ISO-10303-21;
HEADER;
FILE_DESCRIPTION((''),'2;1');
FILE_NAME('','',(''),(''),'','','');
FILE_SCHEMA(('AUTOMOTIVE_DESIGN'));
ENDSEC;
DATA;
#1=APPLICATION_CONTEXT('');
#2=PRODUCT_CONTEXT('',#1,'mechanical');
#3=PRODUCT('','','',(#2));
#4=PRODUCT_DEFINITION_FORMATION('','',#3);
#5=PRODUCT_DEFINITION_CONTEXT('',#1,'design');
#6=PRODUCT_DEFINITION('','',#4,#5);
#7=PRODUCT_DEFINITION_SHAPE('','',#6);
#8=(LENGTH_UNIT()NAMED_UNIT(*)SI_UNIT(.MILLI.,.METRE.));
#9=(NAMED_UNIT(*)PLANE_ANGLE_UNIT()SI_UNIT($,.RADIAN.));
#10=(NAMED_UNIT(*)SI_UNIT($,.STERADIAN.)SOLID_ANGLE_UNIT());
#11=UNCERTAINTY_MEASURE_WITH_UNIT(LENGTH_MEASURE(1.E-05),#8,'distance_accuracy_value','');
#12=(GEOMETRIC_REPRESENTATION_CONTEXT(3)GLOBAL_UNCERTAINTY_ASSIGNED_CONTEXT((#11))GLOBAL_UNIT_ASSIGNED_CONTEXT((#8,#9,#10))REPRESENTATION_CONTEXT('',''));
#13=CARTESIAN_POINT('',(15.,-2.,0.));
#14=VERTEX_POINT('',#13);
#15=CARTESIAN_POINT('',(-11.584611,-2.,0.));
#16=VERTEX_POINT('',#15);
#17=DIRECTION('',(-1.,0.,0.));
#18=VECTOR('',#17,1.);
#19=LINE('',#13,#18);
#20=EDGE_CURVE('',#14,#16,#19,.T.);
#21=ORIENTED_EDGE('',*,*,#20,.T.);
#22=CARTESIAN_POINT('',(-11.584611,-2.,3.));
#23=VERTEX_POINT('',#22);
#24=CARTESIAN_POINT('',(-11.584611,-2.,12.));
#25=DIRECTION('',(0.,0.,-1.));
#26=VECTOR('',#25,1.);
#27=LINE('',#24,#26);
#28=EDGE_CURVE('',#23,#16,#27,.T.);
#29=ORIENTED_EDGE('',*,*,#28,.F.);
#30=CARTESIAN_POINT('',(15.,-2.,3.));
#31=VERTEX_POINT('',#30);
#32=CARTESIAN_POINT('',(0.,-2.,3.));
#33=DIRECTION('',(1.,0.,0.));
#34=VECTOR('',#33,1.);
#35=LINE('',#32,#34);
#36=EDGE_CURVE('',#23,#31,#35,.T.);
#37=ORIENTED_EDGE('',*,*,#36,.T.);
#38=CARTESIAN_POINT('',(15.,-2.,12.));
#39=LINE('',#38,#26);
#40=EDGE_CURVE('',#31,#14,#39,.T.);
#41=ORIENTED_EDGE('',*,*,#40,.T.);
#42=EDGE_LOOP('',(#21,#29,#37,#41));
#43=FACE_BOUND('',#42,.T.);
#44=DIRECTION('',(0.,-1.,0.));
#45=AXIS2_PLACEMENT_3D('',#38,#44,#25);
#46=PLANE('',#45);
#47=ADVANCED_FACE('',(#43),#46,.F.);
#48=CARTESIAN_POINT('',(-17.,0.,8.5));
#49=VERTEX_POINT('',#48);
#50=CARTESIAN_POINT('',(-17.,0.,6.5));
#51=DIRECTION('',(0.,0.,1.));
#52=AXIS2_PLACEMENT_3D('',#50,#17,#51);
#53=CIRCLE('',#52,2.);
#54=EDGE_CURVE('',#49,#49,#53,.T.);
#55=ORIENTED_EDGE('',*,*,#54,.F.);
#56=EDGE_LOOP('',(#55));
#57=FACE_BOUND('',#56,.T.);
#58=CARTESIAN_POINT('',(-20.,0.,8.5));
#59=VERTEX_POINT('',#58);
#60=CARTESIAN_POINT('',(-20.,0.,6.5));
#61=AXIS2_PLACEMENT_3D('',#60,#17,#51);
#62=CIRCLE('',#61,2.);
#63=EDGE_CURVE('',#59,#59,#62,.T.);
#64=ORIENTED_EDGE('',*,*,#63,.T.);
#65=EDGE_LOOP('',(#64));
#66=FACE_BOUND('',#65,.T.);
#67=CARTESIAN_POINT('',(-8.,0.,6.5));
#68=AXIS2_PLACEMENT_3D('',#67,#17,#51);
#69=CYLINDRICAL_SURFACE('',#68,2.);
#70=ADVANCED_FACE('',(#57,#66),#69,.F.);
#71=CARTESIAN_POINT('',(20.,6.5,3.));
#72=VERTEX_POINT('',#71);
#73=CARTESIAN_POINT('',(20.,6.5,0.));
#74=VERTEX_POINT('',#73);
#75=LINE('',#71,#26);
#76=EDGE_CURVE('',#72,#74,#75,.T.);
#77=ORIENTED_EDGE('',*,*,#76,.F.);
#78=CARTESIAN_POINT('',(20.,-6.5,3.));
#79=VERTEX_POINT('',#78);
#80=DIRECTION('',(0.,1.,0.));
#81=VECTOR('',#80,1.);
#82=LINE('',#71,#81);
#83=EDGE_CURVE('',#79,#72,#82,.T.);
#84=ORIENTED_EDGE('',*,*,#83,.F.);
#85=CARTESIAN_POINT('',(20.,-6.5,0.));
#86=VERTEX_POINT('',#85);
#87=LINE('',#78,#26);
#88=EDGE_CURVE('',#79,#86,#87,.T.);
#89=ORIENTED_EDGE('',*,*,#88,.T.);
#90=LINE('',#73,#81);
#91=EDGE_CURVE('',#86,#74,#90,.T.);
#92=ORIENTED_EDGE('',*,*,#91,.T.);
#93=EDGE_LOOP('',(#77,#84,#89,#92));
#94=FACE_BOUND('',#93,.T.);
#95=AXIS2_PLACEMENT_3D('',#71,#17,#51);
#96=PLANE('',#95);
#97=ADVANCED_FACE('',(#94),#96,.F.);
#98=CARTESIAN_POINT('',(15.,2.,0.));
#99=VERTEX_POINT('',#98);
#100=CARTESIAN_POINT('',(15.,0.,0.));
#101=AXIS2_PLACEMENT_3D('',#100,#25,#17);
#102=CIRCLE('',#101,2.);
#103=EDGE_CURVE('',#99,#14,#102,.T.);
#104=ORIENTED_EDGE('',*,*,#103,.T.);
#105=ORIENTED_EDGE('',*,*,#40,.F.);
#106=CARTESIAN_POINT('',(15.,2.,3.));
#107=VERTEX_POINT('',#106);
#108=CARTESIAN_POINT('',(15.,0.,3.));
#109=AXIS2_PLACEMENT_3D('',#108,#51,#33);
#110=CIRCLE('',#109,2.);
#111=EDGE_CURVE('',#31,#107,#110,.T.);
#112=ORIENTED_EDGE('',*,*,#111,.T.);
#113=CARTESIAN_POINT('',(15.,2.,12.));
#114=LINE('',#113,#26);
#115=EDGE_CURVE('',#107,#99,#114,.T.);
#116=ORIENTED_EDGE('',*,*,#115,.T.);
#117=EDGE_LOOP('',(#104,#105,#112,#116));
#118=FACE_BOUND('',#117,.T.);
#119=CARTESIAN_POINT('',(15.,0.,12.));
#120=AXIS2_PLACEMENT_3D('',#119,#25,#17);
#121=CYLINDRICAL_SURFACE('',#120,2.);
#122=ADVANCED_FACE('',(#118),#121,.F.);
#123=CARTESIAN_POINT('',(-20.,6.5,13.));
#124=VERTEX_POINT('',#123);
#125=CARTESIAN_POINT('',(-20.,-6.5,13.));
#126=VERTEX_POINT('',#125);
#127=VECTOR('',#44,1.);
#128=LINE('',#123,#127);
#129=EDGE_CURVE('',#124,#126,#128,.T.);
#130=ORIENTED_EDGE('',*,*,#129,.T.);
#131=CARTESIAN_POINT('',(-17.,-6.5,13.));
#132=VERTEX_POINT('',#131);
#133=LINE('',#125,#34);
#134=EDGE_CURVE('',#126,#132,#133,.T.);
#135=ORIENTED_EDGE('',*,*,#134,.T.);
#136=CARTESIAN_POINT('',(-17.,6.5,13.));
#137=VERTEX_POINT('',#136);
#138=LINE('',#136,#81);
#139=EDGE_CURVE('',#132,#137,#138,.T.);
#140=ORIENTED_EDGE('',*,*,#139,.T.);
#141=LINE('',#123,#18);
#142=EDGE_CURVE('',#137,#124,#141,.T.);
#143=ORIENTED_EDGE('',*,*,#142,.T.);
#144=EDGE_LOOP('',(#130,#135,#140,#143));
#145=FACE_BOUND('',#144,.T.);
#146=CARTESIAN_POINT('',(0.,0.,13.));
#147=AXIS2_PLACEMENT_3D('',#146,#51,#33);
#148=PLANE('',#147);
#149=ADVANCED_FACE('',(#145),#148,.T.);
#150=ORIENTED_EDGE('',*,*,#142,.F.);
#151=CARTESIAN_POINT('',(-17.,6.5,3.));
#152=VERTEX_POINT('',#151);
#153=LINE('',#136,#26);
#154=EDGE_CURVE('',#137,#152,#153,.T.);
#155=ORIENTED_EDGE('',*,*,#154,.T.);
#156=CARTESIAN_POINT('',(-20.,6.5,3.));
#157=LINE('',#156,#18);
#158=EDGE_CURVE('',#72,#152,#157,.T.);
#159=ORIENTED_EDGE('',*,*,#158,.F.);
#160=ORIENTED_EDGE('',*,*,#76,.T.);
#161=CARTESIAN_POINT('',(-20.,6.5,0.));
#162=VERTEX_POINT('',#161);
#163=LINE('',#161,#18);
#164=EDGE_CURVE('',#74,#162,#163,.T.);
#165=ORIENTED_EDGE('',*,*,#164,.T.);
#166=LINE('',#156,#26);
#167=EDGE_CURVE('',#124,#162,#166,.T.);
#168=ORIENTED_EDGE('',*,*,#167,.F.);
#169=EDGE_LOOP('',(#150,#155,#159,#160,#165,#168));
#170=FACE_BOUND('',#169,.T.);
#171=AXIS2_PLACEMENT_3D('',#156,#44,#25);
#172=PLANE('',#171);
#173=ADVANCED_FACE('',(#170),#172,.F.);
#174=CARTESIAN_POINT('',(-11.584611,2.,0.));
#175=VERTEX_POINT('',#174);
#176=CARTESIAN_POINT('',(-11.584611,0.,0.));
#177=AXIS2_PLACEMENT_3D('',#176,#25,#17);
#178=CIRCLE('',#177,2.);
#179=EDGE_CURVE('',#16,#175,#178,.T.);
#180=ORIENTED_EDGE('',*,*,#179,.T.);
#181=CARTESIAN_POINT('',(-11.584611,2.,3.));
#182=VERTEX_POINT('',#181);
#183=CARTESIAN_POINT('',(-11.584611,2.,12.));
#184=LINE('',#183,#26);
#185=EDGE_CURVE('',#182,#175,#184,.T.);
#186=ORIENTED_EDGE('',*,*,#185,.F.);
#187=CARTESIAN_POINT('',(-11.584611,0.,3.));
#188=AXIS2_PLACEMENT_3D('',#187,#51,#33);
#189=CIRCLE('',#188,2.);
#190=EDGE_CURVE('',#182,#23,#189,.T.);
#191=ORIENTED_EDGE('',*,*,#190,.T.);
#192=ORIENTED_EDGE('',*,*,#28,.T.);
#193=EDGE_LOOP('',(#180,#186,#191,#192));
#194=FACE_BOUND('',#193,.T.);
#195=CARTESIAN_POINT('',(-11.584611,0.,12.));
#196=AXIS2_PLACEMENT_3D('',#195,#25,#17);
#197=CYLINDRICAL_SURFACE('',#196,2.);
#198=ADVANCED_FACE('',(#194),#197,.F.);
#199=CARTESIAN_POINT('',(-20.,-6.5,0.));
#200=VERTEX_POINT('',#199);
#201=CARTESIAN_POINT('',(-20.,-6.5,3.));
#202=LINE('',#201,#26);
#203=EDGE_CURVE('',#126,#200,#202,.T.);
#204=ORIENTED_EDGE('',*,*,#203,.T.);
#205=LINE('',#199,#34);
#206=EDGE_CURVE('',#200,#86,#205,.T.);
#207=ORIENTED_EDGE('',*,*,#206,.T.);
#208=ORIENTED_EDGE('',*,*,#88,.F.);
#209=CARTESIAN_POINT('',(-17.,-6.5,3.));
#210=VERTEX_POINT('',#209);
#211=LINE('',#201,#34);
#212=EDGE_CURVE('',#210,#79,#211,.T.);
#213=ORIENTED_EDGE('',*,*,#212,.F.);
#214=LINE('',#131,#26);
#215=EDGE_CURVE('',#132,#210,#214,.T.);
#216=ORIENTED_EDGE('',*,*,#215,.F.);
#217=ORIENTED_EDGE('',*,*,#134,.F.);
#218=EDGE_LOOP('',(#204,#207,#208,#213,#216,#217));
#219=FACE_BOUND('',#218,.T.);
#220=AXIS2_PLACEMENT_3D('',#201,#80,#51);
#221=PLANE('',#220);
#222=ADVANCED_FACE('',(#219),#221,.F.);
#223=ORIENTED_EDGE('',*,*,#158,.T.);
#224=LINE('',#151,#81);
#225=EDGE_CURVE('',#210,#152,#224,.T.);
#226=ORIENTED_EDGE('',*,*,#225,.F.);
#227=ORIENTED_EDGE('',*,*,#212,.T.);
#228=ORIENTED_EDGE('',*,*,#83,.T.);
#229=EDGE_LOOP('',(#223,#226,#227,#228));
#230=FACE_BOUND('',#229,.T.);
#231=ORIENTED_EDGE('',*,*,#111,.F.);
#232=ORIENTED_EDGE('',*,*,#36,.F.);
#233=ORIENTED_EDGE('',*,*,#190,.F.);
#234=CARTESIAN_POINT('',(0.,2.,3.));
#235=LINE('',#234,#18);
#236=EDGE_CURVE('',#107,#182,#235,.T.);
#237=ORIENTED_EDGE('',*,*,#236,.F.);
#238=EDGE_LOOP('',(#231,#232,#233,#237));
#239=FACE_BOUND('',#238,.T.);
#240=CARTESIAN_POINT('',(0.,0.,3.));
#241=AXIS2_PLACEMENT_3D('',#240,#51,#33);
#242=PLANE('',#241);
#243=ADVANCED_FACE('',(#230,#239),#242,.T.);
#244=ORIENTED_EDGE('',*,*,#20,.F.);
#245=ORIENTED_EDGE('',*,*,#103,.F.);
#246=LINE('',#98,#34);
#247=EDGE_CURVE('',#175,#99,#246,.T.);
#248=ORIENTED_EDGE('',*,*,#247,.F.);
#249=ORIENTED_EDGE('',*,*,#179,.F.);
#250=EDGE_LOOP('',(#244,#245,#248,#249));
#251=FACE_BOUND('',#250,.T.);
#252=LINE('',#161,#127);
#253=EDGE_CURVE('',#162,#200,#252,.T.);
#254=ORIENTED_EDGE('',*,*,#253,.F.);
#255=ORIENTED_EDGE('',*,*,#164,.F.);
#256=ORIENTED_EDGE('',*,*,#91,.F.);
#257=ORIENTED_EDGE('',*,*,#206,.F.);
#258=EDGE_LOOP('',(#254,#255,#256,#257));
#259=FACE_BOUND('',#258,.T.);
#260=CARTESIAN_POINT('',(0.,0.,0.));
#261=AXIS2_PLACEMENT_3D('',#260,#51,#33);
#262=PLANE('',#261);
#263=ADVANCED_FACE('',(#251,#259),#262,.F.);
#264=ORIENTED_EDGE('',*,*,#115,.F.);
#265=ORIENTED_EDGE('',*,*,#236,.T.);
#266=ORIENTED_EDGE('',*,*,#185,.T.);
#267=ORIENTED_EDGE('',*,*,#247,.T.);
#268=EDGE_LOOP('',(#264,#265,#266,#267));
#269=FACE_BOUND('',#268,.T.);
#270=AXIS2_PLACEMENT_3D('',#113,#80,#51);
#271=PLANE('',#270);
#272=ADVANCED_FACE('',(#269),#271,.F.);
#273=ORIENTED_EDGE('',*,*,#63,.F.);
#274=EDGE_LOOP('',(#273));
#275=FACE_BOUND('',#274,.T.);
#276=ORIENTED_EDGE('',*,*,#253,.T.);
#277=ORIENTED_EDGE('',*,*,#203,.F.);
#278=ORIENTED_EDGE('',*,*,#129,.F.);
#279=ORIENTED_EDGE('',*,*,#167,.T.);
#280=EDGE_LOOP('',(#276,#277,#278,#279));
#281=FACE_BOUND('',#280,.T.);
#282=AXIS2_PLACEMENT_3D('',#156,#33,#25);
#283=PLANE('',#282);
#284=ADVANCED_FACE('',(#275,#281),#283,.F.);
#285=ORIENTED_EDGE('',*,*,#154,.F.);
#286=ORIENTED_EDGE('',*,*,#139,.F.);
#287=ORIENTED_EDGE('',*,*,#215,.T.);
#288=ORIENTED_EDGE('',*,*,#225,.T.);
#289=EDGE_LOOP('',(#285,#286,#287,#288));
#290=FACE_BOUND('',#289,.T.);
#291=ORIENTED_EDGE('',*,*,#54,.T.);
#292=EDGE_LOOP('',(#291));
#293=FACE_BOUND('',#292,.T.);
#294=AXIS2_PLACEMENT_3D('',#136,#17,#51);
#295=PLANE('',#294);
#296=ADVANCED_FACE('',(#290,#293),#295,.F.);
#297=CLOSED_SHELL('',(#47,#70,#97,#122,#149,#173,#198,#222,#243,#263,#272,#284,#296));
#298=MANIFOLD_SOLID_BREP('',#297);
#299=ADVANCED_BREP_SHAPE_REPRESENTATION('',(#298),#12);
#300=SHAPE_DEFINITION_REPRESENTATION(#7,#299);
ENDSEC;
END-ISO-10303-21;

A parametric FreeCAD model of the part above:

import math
import FreeCAD as App
import Part
import Sketcher
Q = App.Units.Quantity

doc = App.newDocument("Part")
body = doc.addObject("PartDesign::Body", "Body")

# Sketch on XY plane
sketch1 = body.newObject("Sketcher::SketchObject", "Sketch")
sketch1.AttachmentSupport = (doc.getObject("XY_Plane"), [""])
sketch1.MapMode = "FlatFace"
sketch1.addGeometry(Part.LineSegment(App.Vector(-20, 6, 0), App.Vector(-20, -6, 0)), False)
sketch1.addGeometry(Part.LineSegment(App.Vector(-20, -6, 0), App.Vector(20, -6, 0)), False)
sketch1.addGeometry(Part.LineSegment(App.Vector(20, -6, 0), App.Vector(20, 6, 0)), False)
sketch1.addGeometry(Part.LineSegment(App.Vector(20, 6, 0), App.Vector(-20, 6, 0)), False)
sketch1.addConstraint(Sketcher.Constraint("Coincident", 0, 2, 1, 1))
sketch1.addConstraint(Sketcher.Constraint("Coincident", 1, 2, 2, 1))
sketch1.addConstraint(Sketcher.Constraint("Coincident", 2, 2, 3, 1))
sketch1.addConstraint(Sketcher.Constraint("Coincident", 3, 2, 0, 1))
sketch1.addConstraint(Sketcher.Constraint("Vertical", 0))
sketch1.addConstraint(Sketcher.Constraint("Horizontal", 1))
sketch1.addConstraint(Sketcher.Constraint("Vertical", 2))
sketch1.addConstraint(Sketcher.Constraint("Horizontal", 3))
sketch1.addConstraint(Sketcher.Constraint("Symmetric", 0, 2, 2, 2, -1, 1))
sketch1.addConstraint(Sketcher.Constraint("DistanceX", 1, 1, 1, 2, Q("40 mm")))
sketch1.addConstraint(Sketcher.Constraint("DistanceY", 0, 2, 0, 1, Q("13 mm")))
pad1 = body.newObject("PartDesign::Pad", "Pad")
pad1.Profile = sketch1
pad1.Length = 3

# Sketch on XY plane
sketch2 = body.newObject("Sketcher::SketchObject", "Sketch001")
sketch2.AttachmentSupport = (doc.getObject("XY_Plane"), [""])
sketch2.MapMode = "FlatFace"
sketch2.AttachmentOffset = App.Placement(App.Vector(0, 0, 3), App.Rotation())
sketch2.addGeometry(Part.LineSegment(App.Vector(-20, 6.5, 0), App.Vector(-20, -6.5, 0)), False)
sketch2.addGeometry(Part.LineSegment(App.Vector(-20, -6.5, 0), App.Vector(-17, -6.5, 0)), False)
sketch2.addGeometry(Part.LineSegment(App.Vector(-17, -6.5, 0), App.Vector(-17, 6.5, 0)), False)
sketch2.addGeometry(Part.LineSegment(App.Vector(-17, 6.5, 0), App.Vector(-20, 6.5, 0)), False)
sketch2.addConstraint(Sketcher.Constraint("Coincident", 0, 2, 1, 1))
sketch2.addConstraint(Sketcher.Constraint("Coincident", 1, 2, 2, 1))
sketch2.addConstraint(Sketcher.Constraint("Coincident", 2, 2, 3, 1))
sketch2.addConstraint(Sketcher.Constraint("Coincident", 3, 2, 0, 1))
sketch2.addConstraint(Sketcher.Constraint("Vertical", 0))
sketch2.addConstraint(Sketcher.Constraint("Horizontal", 1))
sketch2.addConstraint(Sketcher.Constraint("Vertical", 2))
sketch2.addConstraint(Sketcher.Constraint("Horizontal", 3))
sketch2.addConstraint(Sketcher.Constraint("DistanceX", 1, 1, 1, 2, Q("3 mm")))
sketch2.addConstraint(Sketcher.Constraint("DistanceY", 0, 2, 0, 1, Q("13 mm")))
sketch2.addConstraint(Sketcher.Constraint("DistanceX", 0, 2, -1, 1, Q("20 mm")))
sketch2.addConstraint(Sketcher.Constraint("DistanceY", 0, 2, -1, 1, Q("6.5 mm")))
pad2 = body.newObject("PartDesign::Pad", "Pad001")
pad2.Profile = sketch2
pad2.Length = 10

# Sketch on YZ plane
sketch3 = body.newObject("Sketcher::SketchObject", "Sketch002")
sketch3.AttachmentSupport = (doc.getObject("YZ_Plane"), [""])
sketch3.MapMode = "FlatFace"
sketch3.AttachmentOffset = App.Placement(App.Vector(0, 0, -20), App.Rotation())
sketch3.addGeometry(Part.Circle(App.Vector(0, 6.5, 0), App.Vector(0, 0, 1), 2), False)
sketch3.addConstraint(Sketcher.Constraint("PointOnObject", 0, 3, -2))
sketch3.addConstraint(Sketcher.Constraint("Diameter", 0, Q("4 mm")))
sketch3.addConstraint(Sketcher.Constraint("DistanceY", -1, 1, 0, 3, Q("6.5 mm")))
pocket1 = body.newObject("PartDesign::Pocket", "Pocket")
pocket1.Profile = sketch3
pocket1.Length = 12
pocket1.Reversed = True

# Sketch on XY plane
sketch4 = body.newObject("Sketcher::SketchObject", "Sketch003")
sketch4.AttachmentSupport = (doc.getObject("XY_Plane"), [""])
sketch4.MapMode = "FlatFace"
sketch4.addGeometry(Part.LineSegment(App.Vector(-11.6, 2, 0), App.Vector(15, 2, 0)), False)
sketch4.addGeometry(Part.ArcOfCircle(Part.Circle(App.Vector(15, 0, 0), App.Vector(0, 0, 1), 2), math.radians(-90), math.radians(90)), False)
sketch4.addGeometry(Part.LineSegment(App.Vector(15, -2, 0), App.Vector(-11.6, -2, 0)), False)
sketch4.addGeometry(Part.ArcOfCircle(Part.Circle(App.Vector(-11.6, 0, 0), App.Vector(0, 0, 1), 2), math.radians(90), math.radians(270)), False)
sketch4.addConstraint(Sketcher.Constraint("Tangent", 0, 2, 1, 2))
sketch4.addConstraint(Sketcher.Constraint("Tangent", 1, 1, 2, 1))
sketch4.addConstraint(Sketcher.Constraint("Tangent", 2, 2, 3, 2))
sketch4.addConstraint(Sketcher.Constraint("Tangent", 3, 1, 0, 1))
sketch4.addConstraint(Sketcher.Constraint("Horizontal", 0))
sketch4.addConstraint(Sketcher.Constraint("Horizontal", 2))
sketch4.addConstraint(Sketcher.Constraint("PointOnObject", 1, 3, -1))
sketch4.addConstraint(Sketcher.Constraint("Radius", 1, Q("2 mm")))
sketch4.addConstraint(Sketcher.Constraint("DistanceX", -1, 1, 1, 3, Q("15 mm")))
sketch4.addConstraint(Sketcher.Constraint("DistanceX", 0, 1, 0, 2, Q("26.584611 mm")))
pocket2 = body.newObject("PartDesign::Pocket", "Pocket001")
pocket2.Profile = sketch4
pocket2.Length = 12
pocket2.Reversed = True

doc.recompute()
